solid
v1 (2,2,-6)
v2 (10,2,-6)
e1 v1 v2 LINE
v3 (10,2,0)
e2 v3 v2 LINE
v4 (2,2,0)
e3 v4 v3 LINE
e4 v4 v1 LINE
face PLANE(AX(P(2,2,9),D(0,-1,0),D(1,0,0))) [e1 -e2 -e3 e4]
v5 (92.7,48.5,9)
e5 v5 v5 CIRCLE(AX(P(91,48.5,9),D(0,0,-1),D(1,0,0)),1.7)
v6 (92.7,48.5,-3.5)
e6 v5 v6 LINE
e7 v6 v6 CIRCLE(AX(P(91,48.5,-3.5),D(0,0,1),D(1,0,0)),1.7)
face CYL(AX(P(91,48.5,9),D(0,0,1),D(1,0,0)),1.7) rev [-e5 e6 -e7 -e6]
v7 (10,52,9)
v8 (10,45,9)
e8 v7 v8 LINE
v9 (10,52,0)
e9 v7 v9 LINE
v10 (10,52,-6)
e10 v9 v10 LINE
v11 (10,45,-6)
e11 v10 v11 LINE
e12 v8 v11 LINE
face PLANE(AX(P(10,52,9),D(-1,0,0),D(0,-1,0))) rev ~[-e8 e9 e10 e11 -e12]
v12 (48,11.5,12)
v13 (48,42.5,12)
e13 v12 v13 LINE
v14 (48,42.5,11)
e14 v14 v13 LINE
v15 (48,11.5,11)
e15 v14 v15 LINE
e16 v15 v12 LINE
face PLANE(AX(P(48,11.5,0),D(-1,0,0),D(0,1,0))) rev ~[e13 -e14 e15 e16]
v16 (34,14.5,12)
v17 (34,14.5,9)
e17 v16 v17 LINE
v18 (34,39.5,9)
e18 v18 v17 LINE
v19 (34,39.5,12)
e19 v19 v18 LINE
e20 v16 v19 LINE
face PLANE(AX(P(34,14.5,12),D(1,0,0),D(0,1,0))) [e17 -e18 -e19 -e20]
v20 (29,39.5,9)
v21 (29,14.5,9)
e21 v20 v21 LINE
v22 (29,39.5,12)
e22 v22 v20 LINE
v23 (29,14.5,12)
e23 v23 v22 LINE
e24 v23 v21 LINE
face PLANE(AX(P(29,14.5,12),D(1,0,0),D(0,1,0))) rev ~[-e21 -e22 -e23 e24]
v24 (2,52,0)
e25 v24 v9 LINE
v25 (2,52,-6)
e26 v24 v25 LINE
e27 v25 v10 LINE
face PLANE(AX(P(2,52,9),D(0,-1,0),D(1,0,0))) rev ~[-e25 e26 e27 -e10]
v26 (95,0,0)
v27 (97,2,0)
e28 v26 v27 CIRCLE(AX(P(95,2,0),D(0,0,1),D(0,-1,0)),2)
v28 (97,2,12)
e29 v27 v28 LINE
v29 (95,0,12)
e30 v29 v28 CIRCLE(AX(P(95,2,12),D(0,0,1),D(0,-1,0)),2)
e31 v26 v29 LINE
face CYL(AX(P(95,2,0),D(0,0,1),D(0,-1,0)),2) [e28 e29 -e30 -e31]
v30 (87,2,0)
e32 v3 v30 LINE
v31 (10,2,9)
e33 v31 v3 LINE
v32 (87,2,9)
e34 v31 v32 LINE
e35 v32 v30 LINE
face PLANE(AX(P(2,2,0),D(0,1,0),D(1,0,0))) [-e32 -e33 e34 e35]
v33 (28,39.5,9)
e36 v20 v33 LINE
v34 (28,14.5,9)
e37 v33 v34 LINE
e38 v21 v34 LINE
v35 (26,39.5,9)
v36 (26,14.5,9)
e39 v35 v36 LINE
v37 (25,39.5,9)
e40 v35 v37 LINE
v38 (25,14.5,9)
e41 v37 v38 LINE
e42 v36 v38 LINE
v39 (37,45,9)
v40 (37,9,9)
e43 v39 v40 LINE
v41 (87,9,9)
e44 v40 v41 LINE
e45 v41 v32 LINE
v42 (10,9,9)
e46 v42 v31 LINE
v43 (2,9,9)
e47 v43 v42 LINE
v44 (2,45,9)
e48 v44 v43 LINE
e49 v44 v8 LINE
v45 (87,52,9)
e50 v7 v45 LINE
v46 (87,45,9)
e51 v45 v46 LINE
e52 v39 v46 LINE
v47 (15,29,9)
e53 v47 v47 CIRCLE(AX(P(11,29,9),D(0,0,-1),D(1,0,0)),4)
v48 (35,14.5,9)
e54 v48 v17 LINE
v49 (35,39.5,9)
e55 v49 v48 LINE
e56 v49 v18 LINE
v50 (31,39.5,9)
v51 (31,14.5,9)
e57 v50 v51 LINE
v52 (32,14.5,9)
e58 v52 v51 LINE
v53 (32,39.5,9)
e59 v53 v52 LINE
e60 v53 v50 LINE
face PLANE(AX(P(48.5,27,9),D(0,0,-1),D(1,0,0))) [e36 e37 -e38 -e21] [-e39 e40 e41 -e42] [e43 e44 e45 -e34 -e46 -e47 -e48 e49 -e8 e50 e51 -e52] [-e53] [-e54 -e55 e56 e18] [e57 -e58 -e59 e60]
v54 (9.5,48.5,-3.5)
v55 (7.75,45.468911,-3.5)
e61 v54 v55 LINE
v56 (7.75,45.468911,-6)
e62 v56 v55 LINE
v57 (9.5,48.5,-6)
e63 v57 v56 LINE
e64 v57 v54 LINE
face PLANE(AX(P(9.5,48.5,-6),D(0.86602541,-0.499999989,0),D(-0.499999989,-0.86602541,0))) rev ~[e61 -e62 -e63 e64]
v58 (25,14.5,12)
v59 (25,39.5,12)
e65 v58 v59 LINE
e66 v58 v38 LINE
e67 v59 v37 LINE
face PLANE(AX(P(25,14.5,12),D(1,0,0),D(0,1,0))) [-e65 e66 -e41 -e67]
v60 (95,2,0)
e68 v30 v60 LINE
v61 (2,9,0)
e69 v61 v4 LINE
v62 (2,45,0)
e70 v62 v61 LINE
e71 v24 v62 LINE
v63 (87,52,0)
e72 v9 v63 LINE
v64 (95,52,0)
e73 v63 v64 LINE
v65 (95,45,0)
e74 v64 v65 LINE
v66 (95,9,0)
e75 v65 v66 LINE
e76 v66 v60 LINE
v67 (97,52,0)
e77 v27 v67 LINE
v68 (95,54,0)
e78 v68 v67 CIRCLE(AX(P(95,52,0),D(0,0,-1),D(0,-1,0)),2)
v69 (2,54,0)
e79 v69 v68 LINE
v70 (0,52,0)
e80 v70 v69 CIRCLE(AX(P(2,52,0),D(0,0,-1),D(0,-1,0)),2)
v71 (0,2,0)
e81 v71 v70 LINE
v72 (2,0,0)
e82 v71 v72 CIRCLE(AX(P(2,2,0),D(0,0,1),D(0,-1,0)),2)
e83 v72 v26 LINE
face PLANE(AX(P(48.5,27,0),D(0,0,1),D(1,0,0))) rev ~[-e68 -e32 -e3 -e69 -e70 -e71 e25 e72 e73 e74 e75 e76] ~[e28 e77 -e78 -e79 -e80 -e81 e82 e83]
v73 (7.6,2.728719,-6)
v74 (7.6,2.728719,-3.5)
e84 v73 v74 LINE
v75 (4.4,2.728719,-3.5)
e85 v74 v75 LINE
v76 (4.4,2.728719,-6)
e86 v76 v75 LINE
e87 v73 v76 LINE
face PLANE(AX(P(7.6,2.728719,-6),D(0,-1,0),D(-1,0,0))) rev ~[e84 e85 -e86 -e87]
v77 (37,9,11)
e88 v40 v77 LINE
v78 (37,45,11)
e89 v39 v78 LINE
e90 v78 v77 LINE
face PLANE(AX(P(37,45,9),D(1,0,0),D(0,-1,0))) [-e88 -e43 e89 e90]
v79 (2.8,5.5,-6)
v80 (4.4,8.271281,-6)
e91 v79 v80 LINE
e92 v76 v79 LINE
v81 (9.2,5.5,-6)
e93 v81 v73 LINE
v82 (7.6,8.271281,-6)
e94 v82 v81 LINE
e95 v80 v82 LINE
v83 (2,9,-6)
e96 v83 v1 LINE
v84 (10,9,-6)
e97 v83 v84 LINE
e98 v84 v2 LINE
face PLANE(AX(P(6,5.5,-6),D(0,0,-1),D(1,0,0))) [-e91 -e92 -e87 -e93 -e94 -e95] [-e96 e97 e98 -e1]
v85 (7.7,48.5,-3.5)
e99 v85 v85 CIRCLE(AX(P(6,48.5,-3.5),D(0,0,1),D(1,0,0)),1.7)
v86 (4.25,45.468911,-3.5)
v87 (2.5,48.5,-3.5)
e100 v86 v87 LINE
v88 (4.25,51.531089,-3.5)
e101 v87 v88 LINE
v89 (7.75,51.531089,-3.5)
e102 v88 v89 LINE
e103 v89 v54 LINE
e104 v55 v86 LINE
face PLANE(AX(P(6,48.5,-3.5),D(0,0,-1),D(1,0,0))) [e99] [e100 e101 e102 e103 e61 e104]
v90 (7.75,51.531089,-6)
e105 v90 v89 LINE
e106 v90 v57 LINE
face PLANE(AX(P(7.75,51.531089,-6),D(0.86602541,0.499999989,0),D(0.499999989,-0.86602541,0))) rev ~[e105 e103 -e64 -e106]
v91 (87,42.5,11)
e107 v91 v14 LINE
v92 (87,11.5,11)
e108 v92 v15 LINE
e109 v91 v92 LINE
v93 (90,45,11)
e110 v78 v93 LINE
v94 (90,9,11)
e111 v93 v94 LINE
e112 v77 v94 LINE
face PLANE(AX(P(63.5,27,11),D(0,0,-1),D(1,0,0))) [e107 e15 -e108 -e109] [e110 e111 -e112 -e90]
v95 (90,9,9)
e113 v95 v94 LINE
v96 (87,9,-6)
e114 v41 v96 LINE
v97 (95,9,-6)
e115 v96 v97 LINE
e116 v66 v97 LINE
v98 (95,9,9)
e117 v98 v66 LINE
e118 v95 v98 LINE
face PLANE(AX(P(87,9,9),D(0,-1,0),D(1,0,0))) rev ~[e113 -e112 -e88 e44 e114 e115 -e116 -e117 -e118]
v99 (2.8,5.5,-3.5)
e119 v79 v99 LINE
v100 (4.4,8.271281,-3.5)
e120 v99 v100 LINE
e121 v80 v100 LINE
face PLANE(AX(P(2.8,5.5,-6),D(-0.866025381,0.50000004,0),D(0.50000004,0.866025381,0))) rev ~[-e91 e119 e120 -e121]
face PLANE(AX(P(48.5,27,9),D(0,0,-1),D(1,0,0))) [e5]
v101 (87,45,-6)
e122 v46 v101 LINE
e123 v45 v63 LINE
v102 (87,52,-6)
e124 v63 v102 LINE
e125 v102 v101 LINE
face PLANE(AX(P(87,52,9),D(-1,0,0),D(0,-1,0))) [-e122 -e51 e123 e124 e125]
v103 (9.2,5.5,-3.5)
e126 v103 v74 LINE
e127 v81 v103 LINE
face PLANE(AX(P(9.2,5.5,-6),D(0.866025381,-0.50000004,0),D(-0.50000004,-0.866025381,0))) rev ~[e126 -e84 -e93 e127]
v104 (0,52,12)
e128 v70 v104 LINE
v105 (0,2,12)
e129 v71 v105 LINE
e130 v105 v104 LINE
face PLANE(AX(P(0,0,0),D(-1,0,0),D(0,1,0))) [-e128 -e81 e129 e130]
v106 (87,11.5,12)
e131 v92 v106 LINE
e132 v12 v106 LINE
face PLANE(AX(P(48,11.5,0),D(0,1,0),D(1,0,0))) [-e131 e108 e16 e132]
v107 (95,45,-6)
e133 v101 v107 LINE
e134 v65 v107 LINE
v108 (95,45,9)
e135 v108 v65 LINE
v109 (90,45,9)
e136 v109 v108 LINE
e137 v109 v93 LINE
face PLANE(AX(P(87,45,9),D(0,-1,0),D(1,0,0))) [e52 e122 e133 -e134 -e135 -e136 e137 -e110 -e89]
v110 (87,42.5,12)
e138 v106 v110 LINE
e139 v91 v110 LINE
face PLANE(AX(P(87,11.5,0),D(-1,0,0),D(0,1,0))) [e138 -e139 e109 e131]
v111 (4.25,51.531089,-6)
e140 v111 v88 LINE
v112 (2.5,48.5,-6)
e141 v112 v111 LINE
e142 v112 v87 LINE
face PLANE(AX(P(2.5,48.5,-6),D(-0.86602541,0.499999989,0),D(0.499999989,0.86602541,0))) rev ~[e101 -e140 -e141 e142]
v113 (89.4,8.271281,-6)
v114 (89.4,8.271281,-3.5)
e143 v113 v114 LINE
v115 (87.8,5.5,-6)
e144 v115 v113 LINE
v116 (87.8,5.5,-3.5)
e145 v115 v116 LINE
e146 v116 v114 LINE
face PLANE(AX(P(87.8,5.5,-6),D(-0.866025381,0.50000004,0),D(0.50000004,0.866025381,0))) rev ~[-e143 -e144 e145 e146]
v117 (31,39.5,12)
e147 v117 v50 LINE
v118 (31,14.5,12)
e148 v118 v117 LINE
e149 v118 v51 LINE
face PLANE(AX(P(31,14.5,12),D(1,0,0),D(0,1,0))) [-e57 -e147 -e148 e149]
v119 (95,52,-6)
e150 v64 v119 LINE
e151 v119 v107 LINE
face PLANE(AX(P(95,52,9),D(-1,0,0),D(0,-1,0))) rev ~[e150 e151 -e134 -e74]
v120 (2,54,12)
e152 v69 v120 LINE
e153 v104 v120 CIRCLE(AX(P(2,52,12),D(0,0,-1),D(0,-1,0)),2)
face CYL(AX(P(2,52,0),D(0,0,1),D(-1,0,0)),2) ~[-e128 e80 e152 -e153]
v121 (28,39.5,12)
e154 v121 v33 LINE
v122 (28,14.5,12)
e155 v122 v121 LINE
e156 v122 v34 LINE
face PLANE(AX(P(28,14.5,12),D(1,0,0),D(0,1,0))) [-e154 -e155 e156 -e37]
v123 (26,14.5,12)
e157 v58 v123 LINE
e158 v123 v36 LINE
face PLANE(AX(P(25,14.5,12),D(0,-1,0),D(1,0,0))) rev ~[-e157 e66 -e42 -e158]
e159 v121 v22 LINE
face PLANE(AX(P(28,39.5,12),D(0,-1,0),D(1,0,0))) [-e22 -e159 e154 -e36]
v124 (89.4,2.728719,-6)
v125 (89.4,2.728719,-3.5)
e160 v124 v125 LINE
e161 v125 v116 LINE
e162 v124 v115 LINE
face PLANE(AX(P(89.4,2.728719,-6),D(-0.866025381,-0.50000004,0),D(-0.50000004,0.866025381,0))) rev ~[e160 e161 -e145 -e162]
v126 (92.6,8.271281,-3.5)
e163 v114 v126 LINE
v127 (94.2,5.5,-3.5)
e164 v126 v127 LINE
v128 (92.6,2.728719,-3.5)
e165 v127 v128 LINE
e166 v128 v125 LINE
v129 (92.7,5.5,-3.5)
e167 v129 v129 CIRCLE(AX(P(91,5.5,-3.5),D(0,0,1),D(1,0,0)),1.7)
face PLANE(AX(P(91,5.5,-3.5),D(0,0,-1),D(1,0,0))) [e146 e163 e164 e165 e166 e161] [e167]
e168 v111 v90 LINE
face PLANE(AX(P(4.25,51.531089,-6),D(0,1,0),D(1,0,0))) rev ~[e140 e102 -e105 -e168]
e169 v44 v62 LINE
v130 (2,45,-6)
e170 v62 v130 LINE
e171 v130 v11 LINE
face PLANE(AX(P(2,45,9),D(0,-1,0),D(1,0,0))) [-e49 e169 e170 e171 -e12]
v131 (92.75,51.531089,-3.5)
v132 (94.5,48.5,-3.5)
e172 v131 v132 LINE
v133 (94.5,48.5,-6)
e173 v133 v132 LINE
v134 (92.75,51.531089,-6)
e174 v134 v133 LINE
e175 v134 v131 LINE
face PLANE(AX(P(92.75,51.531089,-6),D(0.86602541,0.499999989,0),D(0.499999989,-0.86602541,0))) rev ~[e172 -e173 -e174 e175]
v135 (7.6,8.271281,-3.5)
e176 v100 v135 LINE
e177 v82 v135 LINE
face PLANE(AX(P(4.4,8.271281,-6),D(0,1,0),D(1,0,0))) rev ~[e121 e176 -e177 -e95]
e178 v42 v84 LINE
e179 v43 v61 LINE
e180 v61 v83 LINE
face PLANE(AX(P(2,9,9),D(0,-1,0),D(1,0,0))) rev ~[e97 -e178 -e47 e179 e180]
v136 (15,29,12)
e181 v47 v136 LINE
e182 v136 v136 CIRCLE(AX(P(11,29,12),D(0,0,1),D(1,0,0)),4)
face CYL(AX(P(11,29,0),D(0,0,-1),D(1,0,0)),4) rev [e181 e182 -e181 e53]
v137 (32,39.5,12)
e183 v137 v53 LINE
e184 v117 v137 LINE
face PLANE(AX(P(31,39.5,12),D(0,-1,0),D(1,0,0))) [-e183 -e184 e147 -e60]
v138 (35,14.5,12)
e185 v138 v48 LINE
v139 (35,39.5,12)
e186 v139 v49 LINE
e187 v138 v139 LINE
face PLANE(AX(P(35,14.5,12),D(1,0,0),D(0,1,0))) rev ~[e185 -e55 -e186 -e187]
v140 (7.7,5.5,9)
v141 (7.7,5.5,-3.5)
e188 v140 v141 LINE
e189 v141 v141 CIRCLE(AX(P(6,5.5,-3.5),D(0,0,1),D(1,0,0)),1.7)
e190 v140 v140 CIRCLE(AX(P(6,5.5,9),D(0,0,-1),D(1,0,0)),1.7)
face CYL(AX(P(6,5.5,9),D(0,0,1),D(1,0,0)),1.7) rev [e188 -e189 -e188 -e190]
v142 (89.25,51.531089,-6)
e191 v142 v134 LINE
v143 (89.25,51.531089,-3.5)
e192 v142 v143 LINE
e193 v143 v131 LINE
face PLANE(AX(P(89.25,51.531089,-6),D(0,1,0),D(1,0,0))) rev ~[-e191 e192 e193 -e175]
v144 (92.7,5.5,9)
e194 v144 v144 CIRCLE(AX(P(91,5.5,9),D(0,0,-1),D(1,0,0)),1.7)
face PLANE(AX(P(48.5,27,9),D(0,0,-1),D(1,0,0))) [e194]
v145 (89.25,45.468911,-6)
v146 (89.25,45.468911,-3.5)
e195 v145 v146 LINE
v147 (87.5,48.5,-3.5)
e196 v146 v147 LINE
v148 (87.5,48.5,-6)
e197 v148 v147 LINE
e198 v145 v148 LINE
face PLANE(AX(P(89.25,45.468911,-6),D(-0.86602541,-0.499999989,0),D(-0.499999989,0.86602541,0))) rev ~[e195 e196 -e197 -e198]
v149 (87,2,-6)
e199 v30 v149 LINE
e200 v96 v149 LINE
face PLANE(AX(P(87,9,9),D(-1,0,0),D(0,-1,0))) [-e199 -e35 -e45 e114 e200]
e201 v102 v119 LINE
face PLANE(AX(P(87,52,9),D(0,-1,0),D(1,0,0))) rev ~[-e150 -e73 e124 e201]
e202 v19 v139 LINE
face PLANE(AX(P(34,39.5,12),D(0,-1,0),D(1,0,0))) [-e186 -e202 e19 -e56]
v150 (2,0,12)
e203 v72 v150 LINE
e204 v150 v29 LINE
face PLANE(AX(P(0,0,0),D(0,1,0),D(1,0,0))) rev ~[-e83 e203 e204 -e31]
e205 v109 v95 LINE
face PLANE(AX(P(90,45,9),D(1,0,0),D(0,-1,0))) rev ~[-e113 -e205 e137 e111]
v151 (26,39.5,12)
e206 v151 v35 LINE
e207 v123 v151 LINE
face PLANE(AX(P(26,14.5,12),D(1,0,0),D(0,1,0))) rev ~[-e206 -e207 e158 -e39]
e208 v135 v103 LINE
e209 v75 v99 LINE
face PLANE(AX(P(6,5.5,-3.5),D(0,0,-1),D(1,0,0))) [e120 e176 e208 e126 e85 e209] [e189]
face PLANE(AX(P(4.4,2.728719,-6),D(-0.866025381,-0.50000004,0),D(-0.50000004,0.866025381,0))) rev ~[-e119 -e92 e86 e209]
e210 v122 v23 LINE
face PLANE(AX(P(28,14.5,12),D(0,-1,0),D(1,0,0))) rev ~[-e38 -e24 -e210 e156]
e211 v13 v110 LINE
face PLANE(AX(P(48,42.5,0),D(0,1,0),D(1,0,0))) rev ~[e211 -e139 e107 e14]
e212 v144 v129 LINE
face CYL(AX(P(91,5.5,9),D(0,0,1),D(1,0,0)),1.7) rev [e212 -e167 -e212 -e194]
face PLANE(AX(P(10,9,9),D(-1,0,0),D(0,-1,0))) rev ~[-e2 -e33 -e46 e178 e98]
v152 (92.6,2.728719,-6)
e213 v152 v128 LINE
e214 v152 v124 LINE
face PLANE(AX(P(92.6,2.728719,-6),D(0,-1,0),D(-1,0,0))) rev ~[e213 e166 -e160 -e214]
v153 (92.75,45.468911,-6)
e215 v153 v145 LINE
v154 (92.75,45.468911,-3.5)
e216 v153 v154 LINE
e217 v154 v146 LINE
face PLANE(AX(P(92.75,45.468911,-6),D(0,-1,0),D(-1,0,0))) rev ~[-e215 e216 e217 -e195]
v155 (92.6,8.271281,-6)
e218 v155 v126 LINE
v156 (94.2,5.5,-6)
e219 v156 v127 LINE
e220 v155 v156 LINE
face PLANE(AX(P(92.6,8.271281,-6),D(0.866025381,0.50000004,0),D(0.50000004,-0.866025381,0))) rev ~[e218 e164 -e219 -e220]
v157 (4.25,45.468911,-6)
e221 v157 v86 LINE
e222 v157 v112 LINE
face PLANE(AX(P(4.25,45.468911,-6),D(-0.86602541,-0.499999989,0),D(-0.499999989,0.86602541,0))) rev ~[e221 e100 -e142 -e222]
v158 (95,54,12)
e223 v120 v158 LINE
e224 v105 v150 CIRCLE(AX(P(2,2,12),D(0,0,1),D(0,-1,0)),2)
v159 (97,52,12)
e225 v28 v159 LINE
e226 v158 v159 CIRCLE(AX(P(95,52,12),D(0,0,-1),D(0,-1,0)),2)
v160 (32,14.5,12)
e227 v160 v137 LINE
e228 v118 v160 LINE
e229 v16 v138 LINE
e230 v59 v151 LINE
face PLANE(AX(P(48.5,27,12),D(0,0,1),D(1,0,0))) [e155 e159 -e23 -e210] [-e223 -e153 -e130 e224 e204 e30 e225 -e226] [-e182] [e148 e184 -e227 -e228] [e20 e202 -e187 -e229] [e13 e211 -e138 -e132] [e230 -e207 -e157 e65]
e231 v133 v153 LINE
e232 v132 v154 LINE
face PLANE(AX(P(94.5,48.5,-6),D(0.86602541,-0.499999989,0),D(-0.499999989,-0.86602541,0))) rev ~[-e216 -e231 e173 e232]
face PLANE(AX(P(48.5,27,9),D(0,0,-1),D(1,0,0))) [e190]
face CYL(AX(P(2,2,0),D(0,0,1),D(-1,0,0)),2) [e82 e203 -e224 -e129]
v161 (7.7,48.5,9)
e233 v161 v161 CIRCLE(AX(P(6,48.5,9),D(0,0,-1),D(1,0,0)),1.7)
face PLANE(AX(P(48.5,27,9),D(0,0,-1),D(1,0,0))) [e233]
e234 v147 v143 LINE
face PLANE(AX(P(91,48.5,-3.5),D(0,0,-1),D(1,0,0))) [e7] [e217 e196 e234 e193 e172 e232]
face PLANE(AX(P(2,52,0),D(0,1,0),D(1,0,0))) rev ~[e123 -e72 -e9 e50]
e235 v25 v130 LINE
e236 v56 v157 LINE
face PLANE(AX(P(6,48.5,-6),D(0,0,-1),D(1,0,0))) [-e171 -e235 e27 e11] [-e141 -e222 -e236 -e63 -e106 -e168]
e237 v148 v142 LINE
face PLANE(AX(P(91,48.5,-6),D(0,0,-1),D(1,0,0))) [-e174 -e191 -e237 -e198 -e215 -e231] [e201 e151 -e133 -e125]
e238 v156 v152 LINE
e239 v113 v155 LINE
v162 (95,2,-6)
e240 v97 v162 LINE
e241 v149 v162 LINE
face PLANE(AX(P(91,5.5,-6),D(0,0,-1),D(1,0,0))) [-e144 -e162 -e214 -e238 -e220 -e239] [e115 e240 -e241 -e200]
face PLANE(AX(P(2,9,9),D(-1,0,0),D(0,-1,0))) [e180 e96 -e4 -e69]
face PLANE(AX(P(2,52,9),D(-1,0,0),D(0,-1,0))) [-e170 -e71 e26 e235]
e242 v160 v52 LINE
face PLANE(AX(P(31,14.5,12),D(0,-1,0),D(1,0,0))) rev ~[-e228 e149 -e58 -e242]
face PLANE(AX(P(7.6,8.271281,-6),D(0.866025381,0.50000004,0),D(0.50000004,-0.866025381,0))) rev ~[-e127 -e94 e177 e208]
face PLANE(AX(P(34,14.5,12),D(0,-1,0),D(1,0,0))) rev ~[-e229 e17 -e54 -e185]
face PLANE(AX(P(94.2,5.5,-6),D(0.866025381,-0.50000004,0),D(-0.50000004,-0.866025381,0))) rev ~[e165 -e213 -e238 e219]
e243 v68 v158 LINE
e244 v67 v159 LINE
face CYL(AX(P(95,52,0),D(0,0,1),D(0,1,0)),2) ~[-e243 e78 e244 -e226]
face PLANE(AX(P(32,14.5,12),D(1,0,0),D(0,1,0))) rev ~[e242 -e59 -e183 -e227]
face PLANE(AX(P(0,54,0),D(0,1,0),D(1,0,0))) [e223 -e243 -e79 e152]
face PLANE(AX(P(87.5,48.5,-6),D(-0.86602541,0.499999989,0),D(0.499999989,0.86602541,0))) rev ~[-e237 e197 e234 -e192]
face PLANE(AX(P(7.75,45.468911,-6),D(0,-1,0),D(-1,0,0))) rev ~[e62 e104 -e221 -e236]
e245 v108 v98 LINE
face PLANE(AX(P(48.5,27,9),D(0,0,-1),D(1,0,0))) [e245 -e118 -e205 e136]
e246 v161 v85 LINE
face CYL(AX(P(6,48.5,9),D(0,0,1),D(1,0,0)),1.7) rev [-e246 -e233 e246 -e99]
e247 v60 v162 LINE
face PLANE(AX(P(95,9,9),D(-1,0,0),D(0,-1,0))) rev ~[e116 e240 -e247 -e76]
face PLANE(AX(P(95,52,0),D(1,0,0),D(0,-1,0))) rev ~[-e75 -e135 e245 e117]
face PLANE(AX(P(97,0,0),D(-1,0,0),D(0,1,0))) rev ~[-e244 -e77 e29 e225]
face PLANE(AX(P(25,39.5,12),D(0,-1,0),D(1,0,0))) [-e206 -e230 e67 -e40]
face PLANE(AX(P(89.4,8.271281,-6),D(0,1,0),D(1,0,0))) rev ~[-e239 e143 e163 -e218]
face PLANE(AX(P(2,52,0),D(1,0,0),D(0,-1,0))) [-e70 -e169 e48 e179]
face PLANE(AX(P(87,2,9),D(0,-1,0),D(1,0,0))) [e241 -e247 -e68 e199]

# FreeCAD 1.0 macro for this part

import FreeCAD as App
import Part
import Sketcher
from FreeCAD import Vector
Q = App.Units.Quantity


def edges_at(feature, points):
    """Names of the edges that pass closest to the given points."""
    edges = feature.Shape.Edges
    near = lambda p: min(range(len(edges)), key=lambda i: edges[i].distToShape(Part.Vertex(*p))[0])
    return sorted({f"Edge{near(p) + 1}" for p in points})

doc = App.newDocument("Part")
body = doc.addObject("PartDesign::Body", "Body")

# Sketch on XY plane
sketch1 = body.newObject("Sketcher::SketchObject", "Sketch")
sketch1.AttachmentSupport = (doc.getObject("XY_Plane"), [""])
sketch1.MapMode = "FlatFace"
sketch1.addGeometry(Part.LineSegment(Vector(0, 54, 0), Vector(0, 0, 0)), False)
sketch1.addGeometry(Part.LineSegment(Vector(0, 0, 0), Vector(97, 0, 0)), False)
sketch1.addGeometry(Part.LineSegment(Vector(97, 0, 0), Vector(97, 54, 0)), False)
sketch1.addGeometry(Part.LineSegment(Vector(97, 54, 0), Vector(0, 54, 0)), False)
sketch1.addGeometry(Part.Circle(Vector(11, 29, 0), Vector(0, 0, 1), 4), False)
sketch1.addGeometry(Part.LineSegment(Vector(87, 11.5, 0), Vector(48, 11.5, 0)), False)
sketch1.addGeometry(Part.LineSegment(Vector(48, 11.5, 0), Vector(48, 42.5, 0)), False)
sketch1.addGeometry(Part.LineSegment(Vector(48, 42.5, 0), Vector(87, 42.5, 0)), False)
sketch1.addGeometry(Part.LineSegment(Vector(87, 42.5, 0), Vector(87, 11.5, 0)), False)
sketch1.addConstraint(Sketcher.Constraint("Coincident", 0, 2, 1, 1))
sketch1.addConstraint(Sketcher.Constraint("Coincident", 1, 2, 2, 1))
sketch1.addConstraint(Sketcher.Constraint("Coincident", 2, 2, 3, 1))
sketch1.addConstraint(Sketcher.Constraint("Coincident", 3, 2, 0, 1))
sketch1.addConstraint(Sketcher.Constraint("Coincident", 5, 2, 6, 1))
sketch1.addConstraint(Sketcher.Constraint("Coincident", 6, 2, 7, 1))
sketch1.addConstraint(Sketcher.Constraint("Coincident", 7, 2, 8, 1))
sketch1.addConstraint(Sketcher.Constraint("Coincident", 8, 2, 5, 1))
sketch1.addConstraint(Sketcher.Constraint("Vertical", 0))
sketch1.addConstraint(Sketcher.Constraint("Horizontal", 1))
sketch1.addConstraint(Sketcher.Constraint("Vertical", 2))
sketch1.addConstraint(Sketcher.Constraint("Horizontal", 3))
sketch1.addConstraint(Sketcher.Constraint("Horizontal", 5))
sketch1.addConstraint(Sketcher.Constraint("Vertical", 6))
sketch1.addConstraint(Sketcher.Constraint("Horizontal", 7))
sketch1.addConstraint(Sketcher.Constraint("Vertical", 8))
sketch1.addConstraint(Sketcher.Constraint("Coincident", 0, 2, -1, 1))
sketch1.addConstraint(Sketcher.Constraint("Diameter", 4, Q("8 mm")))
sketch1.addConstraint(Sketcher.Constraint("DistanceX", 1, 1, 1, 2, Q("97 mm")))
sketch1.addConstraint(Sketcher.Constraint("DistanceX", 5, 2, 5, 1, Q("39 mm")))
sketch1.addConstraint(Sketcher.Constraint("DistanceY", 0, 2, 0, 1, Q("54 mm")))
sketch1.addConstraint(Sketcher.Constraint("DistanceY", 6, 1, 6, 2, Q("31 mm")))
sketch1.addConstraint(Sketcher.Constraint("DistanceX", -1, 1, 4, 3, Q("11 mm")))
sketch1.addConstraint(Sketcher.Constraint("DistanceY", -1, 1, 4, 3, Q("29 mm")))
sketch1.addConstraint(Sketcher.Constraint("DistanceX", -1, 1, 5, 2, Q("48 mm")))
sketch1.addConstraint(Sketcher.Constraint("DistanceY", -1, 1, 5, 2, Q("11.5 mm")))
pad1 = body.newObject("PartDesign::Pad", "Pad")
pad1.Profile = sketch1
pad1.Length = 12

# Sketch on XY plane
sketch2 = body.newObject("Sketcher::SketchObject", "Sketch001")
sketch2.AttachmentSupport = (doc.getObject("XY_Plane"), [""])
sketch2.MapMode = "FlatFace"
sketch2.addGeometry(Part.LineSegment(Vector(2, 2, 0), Vector(2, 52, 0)), False)
sketch2.addGeometry(Part.LineSegment(Vector(2, 52, 0), Vector(95, 52, 0)), False)
sketch2.addGeometry(Part.LineSegment(Vector(95, 52, 0), Vector(95, 2, 0)), False)
sketch2.addGeometry(Part.LineSegment(Vector(95, 2, 0), Vector(2, 2, 0)), False)
sketch2.addConstraint(Sketcher.Constraint("Coincident", 0, 2, 1, 1))
sketch2.addConstraint(Sketcher.Constraint("Coincident", 1, 2, 2, 1))
sketch2.addConstraint(Sketcher.Constraint("Coincident", 2, 2, 3, 1))
sketch2.addConstraint(Sketcher.Constraint("Coincident", 3, 2, 0, 1))
sketch2.addConstraint(Sketcher.Constraint("Vertical", 0))
sketch2.addConstraint(Sketcher.Constraint("Horizontal", 1))
sketch2.addConstraint(Sketcher.Constraint("Vertical", 2))
sketch2.addConstraint(Sketcher.Constraint("Horizontal", 3))
sketch2.addConstraint(Sketcher.Constraint("DistanceX", 1, 1, 1, 2, Q("93 mm")))
sketch2.addConstraint(Sketcher.Constraint("DistanceY", 0, 1, 0, 2, Q("50 mm")))
sketch2.addConstraint(Sketcher.Constraint("DistanceX", -1, 1, 0, 2, Q("2 mm")))
sketch2.addConstraint(Sketcher.Constraint("DistanceY", -1, 1, 0, 2, Q("52 mm")))
pocket1 = body.newObject("PartDesign::Pocket", "Pocket")
pocket1.Profile = sketch2
pocket1.Length = 9
pocket1.Reversed = True

# Sketch on XY plane
sketch3 = body.newObject("Sketcher::SketchObject", "Sketch002")
sketch3.AttachmentSupport = (doc.getObject("XY_Plane"), [""])
sketch3.MapMode = "FlatFace"
sketch3.AttachmentOffset = App.Placement(Vector(0, 0, 9), App.Rotation())
sketch3.addGeometry(Part.LineSegment(Vector(37, 9, 0), Vector(37, 45, 0)), False)
sketch3.addGeometry(Part.LineSegment(Vector(37, 45, 0), Vector(90, 45, 0)), False)
sketch3.addGeometry(Part.LineSegment(Vector(90, 45, 0), Vector(90, 9, 0)), False)
sketch3.addGeometry(Part.LineSegment(Vector(90, 9, 0), Vector(37, 9, 0)), False)
sketch3.addConstraint(Sketcher.Constraint("Coincident", 0, 2, 1, 1))
sketch3.addConstraint(Sketcher.Constraint("Coincident", 1, 2, 2, 1))
sketch3.addConstraint(Sketcher.Constraint("Coincident", 2, 2, 3, 1))
sketch3.addConstraint(Sketcher.Constraint("Coincident", 3, 2, 0, 1))
sketch3.addConstraint(Sketcher.Constraint("Vertical", 0))
sketch3.addConstraint(Sketcher.Constraint("Horizontal", 1))
sketch3.addConstraint(Sketcher.Constraint("Vertical", 2))
sketch3.addConstraint(Sketcher.Constraint("Horizontal", 3))
sketch3.addConstraint(Sketcher.Constraint("DistanceX", 1, 1, 1, 2, Q("53 mm")))
sketch3.addConstraint(Sketcher.Constraint("DistanceY", 0, 1, 0, 2, Q("36 mm")))
sketch3.addConstraint(Sketcher.Constraint("DistanceX", -1, 1, 0, 2, Q("37 mm")))
sketch3.addConstraint(Sketcher.Constraint("DistanceY", -1, 1, 0, 2, Q("45 mm")))
pocket2 = body.newObject("PartDesign::Pocket", "Pocket001")
pocket2.Profile = sketch3
pocket2.Length = 2
pocket2.Reversed = True

# Sketch on XY plane
sketch4 = body.newObject("Sketcher::SketchObject", "Sketch003")
sketch4.AttachmentSupport = (doc.getObject("XY_Plane"), [""])
sketch4.MapMode = "FlatFace"
sketch4.AttachmentOffset = App.Placement(Vector(0, 0, 12), App.Rotation())
sketch4.addGeometry(Part.LineSegment(Vector(28, 39.5, 0), Vector(28, 14.5, 0)), False)
sketch4.addGeometry(Part.LineSegment(Vector(28, 14.5, 0), Vector(29, 14.5, 0)), False)
sketch4.addGeometry(Part.LineSegment(Vector(29, 14.5, 0), Vector(29, 39.5, 0)), False)
sketch4.addGeometry(Part.LineSegment(Vector(29, 39.5, 0), Vector(28, 39.5, 0)), False)
sketch4.addGeometry(Part.LineSegment(Vector(31, 39.5, 0), Vector(31, 14.5, 0)), False)
sketch4.addGeometry(Part.LineSegment(Vector(31, 14.5, 0), Vector(32, 14.5, 0)), False)
sketch4.addGeometry(Part.LineSegment(Vector(32, 14.5, 0), Vector(32, 39.5, 0)), False)
sketch4.addGeometry(Part.LineSegment(Vector(32, 39.5, 0), Vector(31, 39.5, 0)), False)
sketch4.addGeometry(Part.LineSegment(Vector(25, 39.5, 0), Vector(25, 14.5, 0)), False)
sketch4.addGeometry(Part.LineSegment(Vector(25, 14.5, 0), Vector(26, 14.5, 0)), False)
sketch4.addGeometry(Part.LineSegment(Vector(26, 14.5, 0), Vector(26, 39.5, 0)), False)
sketch4.addGeometry(Part.LineSegment(Vector(26, 39.5, 0), Vector(25, 39.5, 0)), False)
sketch4.addGeometry(Part.LineSegment(Vector(34, 39.5, 0), Vector(34, 14.5, 0)), False)
sketch4.addGeometry(Part.LineSegment(Vector(34, 14.5, 0), Vector(35, 14.5, 0)), False)
sketch4.addGeometry(Part.LineSegment(Vector(35, 14.5, 0), Vector(35, 39.5, 0)), False)
sketch4.addGeometry(Part.LineSegment(Vector(35, 39.5, 0), Vector(34, 39.5, 0)), False)
sketch4.addConstraint(Sketcher.Constraint("Coincident", 0, 2, 1, 1))
sketch4.addConstraint(Sketcher.Constraint("Coincident", 1, 2, 2, 1))
sketch4.addConstraint(Sketcher.Constraint("Coincident", 2, 2, 3, 1))
sketch4.addConstraint(Sketcher.Constraint("Coincident", 3, 2, 0, 1))
sketch4.addConstraint(Sketcher.Constraint("Coincident", 4, 2, 5, 1))
sketch4.addConstraint(Sketcher.Constraint("Coincident", 5, 2, 6, 1))
sketch4.addConstraint(Sketcher.Constraint("Coincident", 6, 2, 7, 1))
sketch4.addConstraint(Sketcher.Constraint("Coincident", 7, 2, 4, 1))
sketch4.addConstraint(Sketcher.Constraint("Coincident", 8, 2, 9, 1))
sketch4.addConstraint(Sketcher.Constraint("Coincident", 9, 2, 10, 1))
sketch4.addConstraint(Sketcher.Constraint("Coincident", 10, 2, 11, 1))
sketch4.addConstraint(Sketcher.Constraint("Coincident", 11, 2, 8, 1))
sketch4.addConstraint(Sketcher.Constraint("Coincident", 12, 2, 13, 1))
sketch4.addConstraint(Sketcher.Constraint("Coincident", 13, 2, 14, 1))
sketch4.addConstraint(Sketcher.Constraint("Coincident", 14, 2, 15, 1))
sketch4.addConstraint(Sketcher.Constraint("Coincident", 15, 2, 12, 1))
sketch4.addConstraint(Sketcher.Constraint("Vertical", 0))
sketch4.addConstraint(Sketcher.Constraint("Horizontal", 1))
sketch4.addConstraint(Sketcher.Constraint("Vertical", 2))
sketch4.addConstraint(Sketcher.Constraint("Horizontal", 3))
sketch4.addConstraint(Sketcher.Constraint("Vertical", 4))
sketch4.addConstraint(Sketcher.Constraint("Horizontal", 5))
sketch4.addConstraint(Sketcher.Constraint("Vertical", 6))
sketch4.addConstraint(Sketcher.Constraint("Horizontal", 7))
sketch4.addConstraint(Sketcher.Constraint("Vertical", 8))
sketch4.addConstraint(Sketcher.Constraint("Horizontal", 9))
sketch4.addConstraint(Sketcher.Constraint("Vertical", 10))
sketch4.addConstraint(Sketcher.Constraint("Horizontal", 11))
sketch4.addConstraint(Sketcher.Constraint("Vertical", 12))
sketch4.addConstraint(Sketcher.Constraint("Horizontal", 13))
sketch4.addConstraint(Sketcher.Constraint("Vertical", 14))
sketch4.addConstraint(Sketcher.Constraint("Horizontal", 15))
sketch4.addConstraint(Sketcher.Constraint("Horizontal", 1, 2, 4, 2))
sketch4.addConstraint(Sketcher.Constraint("Horizontal", 3, 2, 6, 2))
sketch4.addConstraint(Sketcher.Constraint("Horizontal", 5, 2, 8, 2))
sketch4.addConstraint(Sketcher.Constraint("Horizontal", 7, 2, 10, 2))
sketch4.addConstraint(Sketcher.Constraint("Horizontal", 9, 2, 12, 2))
sketch4.addConstraint(Sketcher.Constraint("Horizontal", 11, 2, 14, 2))
sketch4.addConstraint(Sketcher.Constraint("Equal", 3, 5))
sketch4.addConstraint(Sketcher.Constraint("Equal", 7, 9))
sketch4.addConstraint(Sketcher.Constraint("Equal", 11, 13))
sketch4.addConstraint(Sketcher.Constraint("DistanceX", 1, 1, 1, 2, Q("1 mm")))
sketch4.addConstraint(Sketcher.Constraint("DistanceY", 0, 2, 0, 1, Q("25 mm")))
sketch4.addConstraint(Sketcher.Constraint("DistanceX", -1, 1, 0, 2, Q("28 mm")))
sketch4.addConstraint(Sketcher.Constraint("DistanceX", -1, 1, 4, 2, Q("31 mm")))
sketch4.addConstraint(Sketcher.Constraint("DistanceX", -1, 1, 8, 2, Q("25 mm")))
sketch4.addConstraint(Sketcher.Constraint("DistanceX", -1, 1, 12, 2, Q("34 mm")))
sketch4.addConstraint(Sketcher.Constraint("DistanceY", -1, 1, 0, 2, Q("14.5 mm")))
pocket3 = body.newObject("PartDesign::Pocket", "Pocket002")
pocket3.Profile = sketch4
pocket3.Type = "ThroughAll"
doc.recompute()

fillet = body.newObject("PartDesign::Fillet", "Fillet")
fillet.Base = (pocket3, edges_at(pocket3, [
    (97, 0, 6),
    (0, 0, 6),
    (97, 54, 6),
    (0, 54, 6),
]))
fillet.Radius = 2

# Sketch on XY plane
sketch5 = body.newObject("Sketcher::SketchObject", "Sketch004")
sketch5.AttachmentSupport = (doc.getObject("XY_Plane"), [""])
sketch5.MapMode = "FlatFace"
sketch5.AttachmentOffset = App.Placement(Vector(0, 0, 9), App.Rotation())
sketch5.addGeometry(Part.LineSegment(Vector(2, 2, 0), Vector(2, 9, 0)), False)
sketch5.addGeometry(Part.LineSegment(Vector(2, 9, 0), Vector(10, 9, 0)), False)
sketch5.addGeometry(Part.LineSegment(Vector(10, 9, 0), Vector(10, 2, 0)), False)
sketch5.addGeometry(Part.LineSegment(Vector(10, 2, 0), Vector(2, 2, 0)), False)
sketch5.addGeometry(Part.Circle(Vector(6, 5.5, 0), Vector(0, 0, 1), 1.7), False)
sketch5.addGeometry(Part.LineSegment(Vector(87, 2, 0), Vector(87, 9, 0)), False)
sketch5.addGeometry(Part.LineSegment(Vector(87, 9, 0), Vector(95, 9, 0)), False)
sketch5.addGeometry(Part.LineSegment(Vector(95, 9, 0), Vector(95, 2, 0)), False)
sketch5.addGeometry(Part.LineSegment(Vector(95, 2, 0), Vector(87, 2, 0)), False)
sketch5.addGeometry(Part.Circle(Vector(91, 5.5, 0), Vector(0, 0, 1), 1.7), False)
sketch5.addGeometry(Part.LineSegment(Vector(2, 45, 0), Vector(2, 52, 0)), False)
sketch5.addGeometry(Part.LineSegment(Vector(2, 52, 0), Vector(10, 52, 0)), False)
sketch5.addGeometry(Part.LineSegment(Vector(10, 52, 0), Vector(10, 45, 0)), False)
sketch5.addGeometry(Part.LineSegment(Vector(10, 45, 0), Vector(2, 45, 0)), False)
sketch5.addGeometry(Part.Circle(Vector(6, 48.5, 0), Vector(0, 0, 1), 1.7), False)
sketch5.addGeometry(Part.LineSegment(Vector(87, 45, 0), Vector(87, 52, 0)), False)
sketch5.addGeometry(Part.LineSegment(Vector(87, 52, 0), Vector(95, 52, 0)), False)
sketch5.addGeometry(Part.LineSegment(Vector(95, 52, 0), Vector(95, 45, 0)), False)
sketch5.addGeometry(Part.LineSegment(Vector(95, 45, 0), Vector(87, 45, 0)), False)
sketch5.addGeometry(Part.Circle(Vector(91, 48.5, 0), Vector(0, 0, 1), 1.7), False)
sketch5.addConstraint(Sketcher.Constraint("Coincident", 0, 2, 1, 1))
sketch5.addConstraint(Sketcher.Constraint("Coincident", 1, 2, 2, 1))
sketch5.addConstraint(Sketcher.Constraint("Coincident", 2, 2, 3, 1))
sketch5.addConstraint(Sketcher.Constraint("Coincident", 3, 2, 0, 1))
sketch5.addConstraint(Sketcher.Constraint("Coincident", 5, 2, 6, 1))
sketch5.addConstraint(Sketcher.Constraint("Coincident", 6, 2, 7, 1))
sketch5.addConstraint(Sketcher.Constraint("Coincident", 7, 2, 8, 1))
sketch5.addConstraint(Sketcher.Constraint("Coincident", 8, 2, 5, 1))
sketch5.addConstraint(Sketcher.Constraint("Coincident", 10, 2, 11, 1))
sketch5.addConstraint(Sketcher.Constraint("Coincident", 11, 2, 12, 1))
sketch5.addConstraint(Sketcher.Constraint("Coincident", 12, 2, 13, 1))
sketch5.addConstraint(Sketcher.Constraint("Coincident", 13, 2, 10, 1))
sketch5.addConstraint(Sketcher.Constraint("Coincident", 15, 2, 16, 1))
sketch5.addConstraint(Sketcher.Constraint("Coincident", 16, 2, 17, 1))
sketch5.addConstraint(Sketcher.Constraint("Coincident", 17, 2, 18, 1))
sketch5.addConstraint(Sketcher.Constraint("Coincident", 18, 2, 15, 1))
sketch5.addConstraint(Sketcher.Constraint("Vertical", 0))
sketch5.addConstraint(Sketcher.Constraint("Horizontal", 1))
sketch5.addConstraint(Sketcher.Constraint("Vertical", 2))
sketch5.addConstraint(Sketcher.Constraint("Horizontal", 3))
sketch5.addConstraint(Sketcher.Constraint("Vertical", 5))
sketch5.addConstraint(Sketcher.Constraint("Horizontal", 6))
sketch5.addConstraint(Sketcher.Constraint("Vertical", 7))
sketch5.addConstraint(Sketcher.Constraint("Horizontal", 8))
sketch5.addConstraint(Sketcher.Constraint("Vertical", 10))
sketch5.addConstraint(Sketcher.Constraint("Horizontal", 11))
sketch5.addConstraint(Sketcher.Constraint("Vertical", 12))
sketch5.addConstraint(Sketcher.Constraint("Horizontal", 13))
sketch5.addConstraint(Sketcher.Constraint("Vertical", 15))
sketch5.addConstraint(Sketcher.Constraint("Horizontal", 16))
sketch5.addConstraint(Sketcher.Constraint("Vertical", 17))
sketch5.addConstraint(Sketcher.Constraint("Horizontal", 18))
sketch5.addConstraint(Sketcher.Constraint("Equal", 4, 9))
sketch5.addConstraint(Sketcher.Constraint("Equal", 9, 14))
sketch5.addConstraint(Sketcher.Constraint("Equal", 14, 19))
sketch5.addConstraint(Sketcher.Constraint("Horizontal", 4, 3, 9, 3))
sketch5.addConstraint(Sketcher.Constraint("Horizontal", 14, 3, 19, 3))
sketch5.addConstraint(Sketcher.Constraint("Horizontal", 1, 2, 5, 2))
sketch5.addConstraint(Sketcher.Constraint("Horizontal", 3, 2, 7, 2))
sketch5.addConstraint(Sketcher.Constraint("Horizontal", 11, 2, 15, 2))
sketch5.addConstraint(Sketcher.Constraint("Horizontal", 13, 2, 17, 2))
sketch5.addConstraint(Sketcher.Constraint("Vertical", 4, 3, 14, 3))
sketch5.addConstraint(Sketcher.Constraint("Vertical", 9, 3, 19, 3))
sketch5.addConstraint(Sketcher.Constraint("Vertical", 3, 2, 10, 2))
sketch5.addConstraint(Sketcher.Constraint("Vertical", 2, 2, 11, 2))
sketch5.addConstraint(Sketcher.Constraint("Vertical", 8, 2, 15, 2))
sketch5.addConstraint(Sketcher.Constraint("Vertical", 7, 2, 16, 2))
sketch5.addConstraint(Sketcher.Constraint("Equal", 3, 6))
sketch5.addConstraint(Sketcher.Constraint("Equal", 7, 10))
sketch5.addConstraint(Sketcher.Constraint("Diameter", 4, Q("3.4 mm")))
sketch5.addConstraint(Sketcher.Constraint("DistanceX", 1, 1, 1, 2, Q("8 mm")))
sketch5.addConstraint(Sketcher.Constraint("DistanceY", 0, 1, 0, 2, Q("7 mm")))
sketch5.addConstraint(Sketcher.Constraint("DistanceX", -1, 1, 4, 3, Q("6 mm")))
sketch5.addConstraint(Sketcher.Constraint("DistanceX", -1, 1, 9, 3, Q("91 mm")))
sketch5.addConstraint(Sketcher.Constraint("DistanceX", -1, 1, 0, 2, Q("2 mm")))
sketch5.addConstraint(Sketcher.Constraint("DistanceY", -1, 1, 0, 2, Q("9 mm")))
sketch5.addConstraint(Sketcher.Constraint("DistanceX", -1, 1, 5, 2, Q("87 mm")))
sketch5.addConstraint(Sketcher.Constraint("DistanceY", -1, 1, 10, 2, Q("52 mm")))
sketch5.addConstraint(Sketcher.Constraint("DistanceY", 4, 3, 14, 3, Q("43 mm")))
sketch5.addConstraint(Sketcher.Constraint("DistanceY", -1, 1, 4, 3, Q("5.5 mm")))
pad2 = body.newObject("PartDesign::Pad", "Pad001")
pad2.Profile = sketch5
pad2.Length = 15
pad2.Reversed = True

# Sketch on XY plane
sketch6 = body.newObject("Sketcher::SketchObject", "Sketch005")
sketch6.AttachmentSupport = (doc.getObject("XY_Plane"), [""])
sketch6.MapMode = "FlatFace"
sketch6.AttachmentOffset = App.Placement(Vector(0, 0, -6), App.Rotation())
sketch6.addGeometry(Part.LineSegment(Vector(7.6, 8.271281, 0), Vector(9.2, 5.5, 0)), False)
sketch6.addGeometry(Part.LineSegment(Vector(9.2, 5.5, 0), Vector(7.6, 2.728719, 0)), False)
sketch6.addGeometry(Part.LineSegment(Vector(7.6, 2.728719, 0), Vector(4.4, 2.728719, 0)), False)
sketch6.addGeometry(Part.LineSegment(Vector(4.4, 2.728719, 0), Vector(2.8, 5.5, 0)), False)
sketch6.addGeometry(Part.LineSegment(Vector(2.8, 5.5, 0), Vector(4.4, 8.271281, 0)), False)
sketch6.addGeometry(Part.LineSegment(Vector(4.4, 8.271281, 0), Vector(7.6, 8.271281, 0)), False)
sketch6.addConstraint(Sketcher.Constraint("Coincident", 0, 2, 1, 1))
sketch6.addConstraint(Sketcher.Constraint("Coincident", 1, 2, 2, 1))
sketch6.addConstraint(Sketcher.Constraint("Coincident", 2, 2, 3, 1))
sketch6.addConstraint(Sketcher.Constraint("Coincident", 3, 2, 4, 1))
sketch6.addConstraint(Sketcher.Constraint("Coincident", 4, 2, 5, 1))
sketch6.addConstraint(Sketcher.Constraint("Coincident", 5, 2, 0, 1))
sketch6.addConstraint(Sketcher.Constraint("Horizontal", 2))
sketch6.addConstraint(Sketcher.Constraint("Horizontal", 5))
sketch6.addConstraint(Sketcher.Constraint("Parallel", 0, 3))
sketch6.addConstraint(Sketcher.Constraint("Parallel", 1, 4))
sketch6.addConstraint(Sketcher.Constraint("Horizontal", 0, 2, 3, 2))
sketch6.addConstraint(Sketcher.Constraint("Vertical", 2, 2, 4, 2))
sketch6.addConstraint(Sketcher.Constraint("Vertical", 1, 2, 5, 2))
sketch6.addConstraint(Sketcher.Constraint("Angle", 0, Q("-59.999997 deg")))
sketch6.addConstraint(Sketcher.Constraint("DistanceX", 2, 2, 2, 1, Q("3.2 mm")))
sketch6.addConstraint(Sketcher.Constraint("Distance", 0, Q("3.2 mm")))
sketch6.addConstraint(Sketcher.Constraint("DistanceX", -1, 1, 0, 2, Q("9.2 mm")))
sketch6.addConstraint(Sketcher.Constraint("DistanceY", -1, 1, 0, 2, Q("5.5 mm")))
pocket4 = body.newObject("PartDesign::Pocket", "Pocket003")
pocket4.Profile = sketch6
pocket4.Length = 2.5
pocket4.Reversed = True

# Sketch on XY plane
sketch7 = body.newObject("Sketcher::SketchObject", "Sketch006")
sketch7.AttachmentSupport = (doc.getObject("XY_Plane"), [""])
sketch7.MapMode = "FlatFace"
sketch7.AttachmentOffset = App.Placement(Vector(0, 0, -6), App.Rotation())
sketch7.addGeometry(Part.LineSegment(Vector(92.6, 8.271281, 0), Vector(94.2, 5.5, 0)), False)
sketch7.addGeometry(Part.LineSegment(Vector(94.2, 5.5, 0), Vector(92.6, 2.728719, 0)), False)
sketch7.addGeometry(Part.LineSegment(Vector(92.6, 2.728719, 0), Vector(89.4, 2.728719, 0)), False)
sketch7.addGeometry(Part.LineSegment(Vector(89.4, 2.728719, 0), Vector(87.8, 5.5, 0)), False)
sketch7.addGeometry(Part.LineSegment(Vector(87.8, 5.5, 0), Vector(89.4, 8.271281, 0)), False)
sketch7.addGeometry(Part.LineSegment(Vector(89.4, 8.271281, 0), Vector(92.6, 8.271281, 0)), False)
sketch7.addConstraint(Sketcher.Constraint("Coincident", 0, 2, 1, 1))
sketch7.addConstraint(Sketcher.Constraint("Coincident", 1, 2, 2, 1))
sketch7.addConstraint(Sketcher.Constraint("Coincident", 2, 2, 3, 1))
sketch7.addConstraint(Sketcher.Constraint("Coincident", 3, 2, 4, 1))
sketch7.addConstraint(Sketcher.Constraint("Coincident", 4, 2, 5, 1))
sketch7.addConstraint(Sketcher.Constraint("Coincident", 5, 2, 0, 1))
sketch7.addConstraint(Sketcher.Constraint("Horizontal", 2))
sketch7.addConstraint(Sketcher.Constraint("Horizontal", 5))
sketch7.addConstraint(Sketcher.Constraint("Parallel", 0, 3))
sketch7.addConstraint(Sketcher.Constraint("Parallel", 1, 4))
sketch7.addConstraint(Sketcher.Constraint("Horizontal", 0, 2, 3, 2))
sketch7.addConstraint(Sketcher.Constraint("Vertical", 2, 2, 4, 2))
sketch7.addConstraint(Sketcher.Constraint("Vertical", 1, 2, 5, 2))
sketch7.addConstraint(Sketcher.Constraint("Angle", 0, Q("-59.999997 deg")))
sketch7.addConstraint(Sketcher.Constraint("DistanceX", 2, 2, 2, 1, Q("3.2 mm")))
sketch7.addConstraint(Sketcher.Constraint("Distance", 0, Q("3.2 mm")))
sketch7.addConstraint(Sketcher.Constraint("DistanceX", -1, 1, 0, 2, Q("94.2 mm")))
sketch7.addConstraint(Sketcher.Constraint("DistanceY", -1, 1, 0, 2, Q("5.5 mm")))
pocket5 = body.newObject("PartDesign::Pocket", "Pocket004")
pocket5.Profile = sketch7
pocket5.Length = 2.5
pocket5.Reversed = True

# Sketch on XY plane
sketch8 = body.newObject("Sketcher::SketchObject", "Sketch007")
sketch8.AttachmentSupport = (doc.getObject("XY_Plane"), [""])
sketch8.MapMode = "FlatFace"
sketch8.AttachmentOffset = App.Placement(Vector(0, 0, -6), App.Rotation())
sketch8.addGeometry(Part.LineSegment(Vector(7.75, 51.531089, 0), Vector(9.5, 48.5, 0)), False)
sketch8.addGeometry(Part.LineSegment(Vector(9.5, 48.5, 0), Vector(7.75, 45.468911, 0)), False)
sketch8.addGeometry(Part.LineSegment(Vector(7.75, 45.468911, 0), Vector(4.25, 45.468911, 0)), False)
sketch8.addGeometry(Part.LineSegment(Vector(4.25, 45.468911, 0), Vector(2.5, 48.5, 0)), False)
sketch8.addGeometry(Part.LineSegment(Vector(2.5, 48.5, 0), Vector(4.25, 51.531089, 0)), False)
sketch8.addGeometry(Part.LineSegment(Vector(4.25, 51.531089, 0), Vector(7.75, 51.531089, 0)), False)
sketch8.addConstraint(Sketcher.Constraint("Coincident", 0, 2, 1, 1))
sketch8.addConstraint(Sketcher.Constraint("Coincident", 1, 2, 2, 1))
sketch8.addConstraint(Sketcher.Constraint("Coincident", 2, 2, 3, 1))
sketch8.addConstraint(Sketcher.Constraint("Coincident", 3, 2, 4, 1))
sketch8.addConstraint(Sketcher.Constraint("Coincident", 4, 2, 5, 1))
sketch8.addConstraint(Sketcher.Constraint("Coincident", 5, 2, 0, 1))
sketch8.addConstraint(Sketcher.Constraint("Horizontal", 2))
sketch8.addConstraint(Sketcher.Constraint("Horizontal", 5))
sketch8.addConstraint(Sketcher.Constraint("Parallel", 0, 3))
sketch8.addConstraint(Sketcher.Constraint("Parallel", 1, 4))
sketch8.addConstraint(Sketcher.Constraint("Horizontal", 0, 2, 3, 2))
sketch8.addConstraint(Sketcher.Constraint("Vertical", 2, 2, 4, 2))
sketch8.addConstraint(Sketcher.Constraint("Vertical", 1, 2, 5, 2))
sketch8.addConstraint(Sketcher.Constraint("Angle", 0, Q("-60.000001 deg")))
sketch8.addConstraint(Sketcher.Constraint("DistanceX", 2, 2, 2, 1, Q("3.5 mm")))
sketch8.addConstraint(Sketcher.Constraint("DistanceX", 3, 2, 0, 2, Q("7 mm")))
sketch8.addConstraint(Sketcher.Constraint("DistanceX", -1, 1, 0, 2, Q("9.5 mm")))
sketch8.addConstraint(Sketcher.Constraint("DistanceY", -1, 1, 0, 2, Q("48.5 mm")))
pocket6 = body.newObject("PartDesign::Pocket", "Pocket005")
pocket6.Profile = sketch8
pocket6.Length = 2.5
pocket6.Reversed = True

# Sketch on XY plane
sketch9 = body.newObject("Sketcher::SketchObject", "Sketch008")
sketch9.AttachmentSupport = (doc.getObject("XY_Plane"), [""])
sketch9.MapMode = "FlatFace"
sketch9.AttachmentOffset = App.Placement(Vector(0, 0, -6), App.Rotation())
sketch9.addGeometry(Part.LineSegment(Vector(92.75, 51.531089, 0), Vector(94.5, 48.5, 0)), False)
sketch9.addGeometry(Part.LineSegment(Vector(94.5, 48.5, 0), Vector(92.75, 45.468911, 0)), False)
sketch9.addGeometry(Part.LineSegment(Vector(92.75, 45.468911, 0), Vector(89.25, 45.468911, 0)), False)
sketch9.addGeometry(Part.LineSegment(Vector(89.25, 45.468911, 0), Vector(87.5, 48.5, 0)), False)
sketch9.addGeometry(Part.LineSegment(Vector(87.5, 48.5, 0), Vector(89.25, 51.531089, 0)), False)
sketch9.addGeometry(Part.LineSegment(Vector(89.25, 51.531089, 0), Vector(92.75, 51.531089, 0)), False)
sketch9.addConstraint(Sketcher.Constraint("Coincident", 0, 2, 1, 1))
sketch9.addConstraint(Sketcher.Constraint("Coincident", 1, 2, 2, 1))
sketch9.addConstraint(Sketcher.Constraint("Coincident", 2, 2, 3, 1))
sketch9.addConstraint(Sketcher.Constraint("Coincident", 3, 2, 4, 1))
sketch9.addConstraint(Sketcher.Constraint("Coincident", 4, 2, 5, 1))
sketch9.addConstraint(Sketcher.Constraint("Coincident", 5, 2, 0, 1))
sketch9.addConstraint(Sketcher.Constraint("Horizontal", 2))
sketch9.addConstraint(Sketcher.Constraint("Horizontal", 5))
sketch9.addConstraint(Sketcher.Constraint("Parallel", 0, 3))
sketch9.addConstraint(Sketcher.Constraint("Parallel", 1, 4))
sketch9.addConstraint(Sketcher.Constraint("Horizontal", 0, 2, 3, 2))
sketch9.addConstraint(Sketcher.Constraint("Vertical", 2, 2, 4, 2))
sketch9.addConstraint(Sketcher.Constraint("Vertical", 1, 2, 5, 2))
sketch9.addConstraint(Sketcher.Constraint("Angle", 0, Q("-60.000001 deg")))
sketch9.addConstraint(Sketcher.Constraint("DistanceX", 2, 2, 2, 1, Q("3.5 mm")))
sketch9.addConstraint(Sketcher.Constraint("DistanceX", 3, 2, 0, 2, Q("7 mm")))
sketch9.addConstraint(Sketcher.Constraint("DistanceX", -1, 1, 0, 2, Q("94.5 mm")))
sketch9.addConstraint(Sketcher.Constraint("DistanceY", -1, 1, 0, 2, Q("48.5 mm")))
pocket7 = body.newObject("PartDesign::Pocket", "Pocket006")
pocket7.Profile = sketch9
pocket7.Length = 2.5
pocket7.Reversed = True

doc.recompute()
